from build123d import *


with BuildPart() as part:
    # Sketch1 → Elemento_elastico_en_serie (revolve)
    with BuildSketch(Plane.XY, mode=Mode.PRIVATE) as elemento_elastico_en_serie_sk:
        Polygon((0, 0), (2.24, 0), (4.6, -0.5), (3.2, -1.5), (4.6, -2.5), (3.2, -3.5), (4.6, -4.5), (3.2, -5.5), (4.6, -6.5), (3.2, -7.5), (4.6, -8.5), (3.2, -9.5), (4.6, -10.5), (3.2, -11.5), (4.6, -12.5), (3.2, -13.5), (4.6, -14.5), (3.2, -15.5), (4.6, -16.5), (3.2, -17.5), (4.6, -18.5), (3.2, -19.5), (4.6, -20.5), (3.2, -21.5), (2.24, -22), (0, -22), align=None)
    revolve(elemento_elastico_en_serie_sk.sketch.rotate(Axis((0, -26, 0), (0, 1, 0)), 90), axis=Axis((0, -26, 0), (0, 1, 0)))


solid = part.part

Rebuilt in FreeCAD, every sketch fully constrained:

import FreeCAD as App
import Part
import Sketcher

V = App.Vector
Q = App.Units.Quantity

doc = App.newDocument("Part")
body = doc.addObject("PartDesign::Body", "Body")

sketch1 = body.newObject("Sketcher::SketchObject", "Sketch")
sketch1.AttachmentSupport = (doc.getObject("XY_Plane"), [""])
sketch1.MapMode = "FlatFace"
sketch1.addGeometry([
    Part.LineSegment(V(2.24, 0, 0), V(0, 0, 0)),
    Part.LineSegment(V(0, 0, 0), V(0, -22, 0)),
    Part.LineSegment(V(0, -22, 0), V(2.24, -22, 0)),
    Part.LineSegment(V(2.24, -22, 0), V(3.2, -21.5, 0)),
    Part.LineSegment(V(3.2, -21.5, 0), V(4.6, -20.5, 0)),
    Part.LineSegment(V(4.6, -20.5, 0), V(3.2, -19.5, 0)),
    Part.LineSegment(V(3.2, -19.5, 0), V(4.6, -18.5, 0)),
    Part.LineSegment(V(4.6, -18.5, 0), V(3.2, -17.5, 0)),
    Part.LineSegment(V(3.2, -17.5, 0), V(4.6, -16.5, 0)),
    Part.LineSegment(V(4.6, -16.5, 0), V(3.2, -15.5, 0)),
    Part.LineSegment(V(3.2, -15.5, 0), V(4.6, -14.5, 0)),
    Part.LineSegment(V(4.6, -14.5, 0), V(3.2, -13.5, 0)),
    Part.LineSegment(V(3.2, -13.5, 0), V(4.6, -12.5, 0)),
    Part.LineSegment(V(4.6, -12.5, 0), V(3.2, -11.5, 0)),
    Part.LineSegment(V(3.2, -11.5, 0), V(4.6, -10.5, 0)),
    Part.LineSegment(V(4.6, -10.5, 0), V(3.2, -9.5, 0)),
    Part.LineSegment(V(3.2, -9.5, 0), V(4.6, -8.5, 0)),
    Part.LineSegment(V(4.6, -8.5, 0), V(3.2, -7.5, 0)),
    Part.LineSegment(V(3.2, -7.5, 0), V(4.6, -6.5, 0)),
    Part.LineSegment(V(4.6, -6.5, 0), V(3.2, -5.5, 0)),
    Part.LineSegment(V(3.2, -5.5, 0), V(4.6, -4.5, 0)),
    Part.LineSegment(V(4.6, -4.5, 0), V(3.2, -3.5, 0)),
    Part.LineSegment(V(3.2, -3.5, 0), V(4.6, -2.5, 0)),
    Part.LineSegment(V(4.6, -2.5, 0), V(3.2, -1.5, 0)),
    Part.LineSegment(V(3.2, -1.5, 0), V(4.6, -0.5, 0)),
    Part.LineSegment(V(4.6, -0.5, 0), V(2.24, 0, 0)),
], False)
sketch1.addConstraint([
    Sketcher.Constraint("Coincident", 0, 2, 1, 1),
    Sketcher.Constraint("Coincident", 1, 2, 2, 1),
    Sketcher.Constraint("Coincident", 2, 2, 3, 1),
    Sketcher.Constraint("Coincident", 3, 2, 4, 1),
    Sketcher.Constraint("Coincident", 4, 2, 5, 1),
    Sketcher.Constraint("Coincident", 5, 2, 6, 1),
    Sketcher.Constraint("Coincident", 6, 2, 7, 1),
    Sketcher.Constraint("Coincident", 7, 2, 8, 1),
    Sketcher.Constraint("Coincident", 8, 2, 9, 1),
    Sketcher.Constraint("Coincident", 9, 2, 10, 1),
    Sketcher.Constraint("Coincident", 10, 2, 11, 1),
    Sketcher.Constraint("Coincident", 11, 2, 12, 1),
    Sketcher.Constraint("Coincident", 12, 2, 13, 1),
    Sketcher.Constraint("Coincident", 13, 2, 14, 1),
    Sketcher.Constraint("Coincident", 14, 2, 15, 1),
    Sketcher.Constraint("Coincident", 15, 2, 16, 1),
    Sketcher.Constraint("Coincident", 16, 2, 17, 1),
    Sketcher.Constraint("Coincident", 17, 2, 18, 1),
    Sketcher.Constraint("Coincident", 18, 2, 19, 1),
    Sketcher.Constraint("Coincident", 19, 2, 20, 1),
    Sketcher.Constraint("Coincident", 20, 2, 21, 1),
    Sketcher.Constraint("Coincident", 21, 2, 22, 1),
    Sketcher.Constraint("Coincident", 22, 2, 23, 1),
    Sketcher.Constraint("Coincident", 23, 2, 24, 1),
    Sketcher.Constraint("Coincident", 24, 2, 25, 1),
    Sketcher.Constraint("Coincident", 25, 2, 0, 1),
    Sketcher.Constraint("Horizontal", 0),
    Sketcher.Constraint("Vertical", 1),
    Sketcher.Constraint("Horizontal", 2),
    Sketcher.Constraint("Coincident", 0, 2, -1, 1),
    Sketcher.Constraint("Parallel", 4, 6),
    Sketcher.Constraint("Parallel", 5, 7),
    Sketcher.Constraint("Parallel", 6, 8),
    Sketcher.Constraint("Parallel", 7, 9),
    Sketcher.Constraint("Parallel", 8, 10),
    Sketcher.Constraint("Parallel", 9, 11),
    Sketcher.Constraint("Parallel", 10, 12),
    Sketcher.Constraint("Parallel", 11, 13),
    Sketcher.Constraint("Parallel", 12, 14),
    Sketcher.Constraint("Parallel", 13, 15),
    Sketcher.Constraint("Parallel", 14, 16),
    Sketcher.Constraint("Parallel", 15, 17),
    Sketcher.Constraint("Parallel", 16, 18),
    Sketcher.Constraint("Parallel", 17, 19),
    Sketcher.Constraint("Parallel", 18, 20),
    Sketcher.Constraint("Parallel", 19, 21),
    Sketcher.Constraint("Parallel", 20, 22),
    Sketcher.Constraint("Parallel", 21, 23),
    Sketcher.Constraint("Parallel", 22, 24),
    Sketcher.Constraint("Vertical", 3, 2, 5, 2),
    Sketcher.Constraint("Vertical", 4, 2, 6, 2),
    Sketcher.Constraint("Vertical", 5, 2, 7, 2),
    Sketcher.Constraint("Vertical", 6, 2, 8, 2),
    Sketcher.Constraint("Vertical", 7, 2, 9, 2),
    Sketcher.Constraint("Vertical", 8, 2, 10, 2),
    Sketcher.Constraint("Vertical", 9, 2, 11, 2),
    Sketcher.Constraint("Vertical", 10, 2, 12, 2),
    Sketcher.Constraint("Vertical", 11, 2, 13, 2),
    Sketcher.Constraint("Vertical", 12, 2, 14, 2),
    Sketcher.Constraint("Vertical", 13, 2, 15, 2),
    Sketcher.Constraint("Vertical", 14, 2, 16, 2),
    Sketcher.Constraint("Vertical", 15, 2, 17, 2),
    Sketcher.Constraint("Vertical", 16, 2, 18, 2),
    Sketcher.Constraint("Vertical", 17, 2, 19, 2),
    Sketcher.Constraint("Vertical", 18, 2, 20, 2),
    Sketcher.Constraint("Vertical", 19, 2, 21, 2),
    Sketcher.Constraint("Vertical", 20, 2, 22, 2),
    Sketcher.Constraint("Vertical", 21, 2, 23, 2),
    Sketcher.Constraint("Vertical", 22, 2, 24, 2),
    Sketcher.Constraint("Vertical", 2, 2, 25, 2),
    Sketcher.Constraint("Equal", 4, 5),
    Sketcher.Constraint("DistanceY", 1, 2, 1, 1, Q("22 mm")),
    Sketcher.Constraint("DistanceY", 3, 2, 4, 2, Q("1 mm")),
    Sketcher.Constraint("DistanceX", 0, 2, 0, 1, Q("2.24 mm")),
    Sketcher.Constraint("DistanceX", -1, 1, 3, 2, Q("3.2 mm")),
    Sketcher.Constraint("DistanceY", 3, 2, -1, 1, Q("21.5 mm")),
    Sketcher.Constraint("DistanceX", -1, 1, 4, 2, Q("4.6 mm")),
])
revolution = body.newObject("PartDesign::Revolution", "Revolution")
revolution.Profile = sketch1
revolution.ReferenceAxis = (sketch1, ["V_Axis"])
revolution.Angle = 360

doc.recompute()
